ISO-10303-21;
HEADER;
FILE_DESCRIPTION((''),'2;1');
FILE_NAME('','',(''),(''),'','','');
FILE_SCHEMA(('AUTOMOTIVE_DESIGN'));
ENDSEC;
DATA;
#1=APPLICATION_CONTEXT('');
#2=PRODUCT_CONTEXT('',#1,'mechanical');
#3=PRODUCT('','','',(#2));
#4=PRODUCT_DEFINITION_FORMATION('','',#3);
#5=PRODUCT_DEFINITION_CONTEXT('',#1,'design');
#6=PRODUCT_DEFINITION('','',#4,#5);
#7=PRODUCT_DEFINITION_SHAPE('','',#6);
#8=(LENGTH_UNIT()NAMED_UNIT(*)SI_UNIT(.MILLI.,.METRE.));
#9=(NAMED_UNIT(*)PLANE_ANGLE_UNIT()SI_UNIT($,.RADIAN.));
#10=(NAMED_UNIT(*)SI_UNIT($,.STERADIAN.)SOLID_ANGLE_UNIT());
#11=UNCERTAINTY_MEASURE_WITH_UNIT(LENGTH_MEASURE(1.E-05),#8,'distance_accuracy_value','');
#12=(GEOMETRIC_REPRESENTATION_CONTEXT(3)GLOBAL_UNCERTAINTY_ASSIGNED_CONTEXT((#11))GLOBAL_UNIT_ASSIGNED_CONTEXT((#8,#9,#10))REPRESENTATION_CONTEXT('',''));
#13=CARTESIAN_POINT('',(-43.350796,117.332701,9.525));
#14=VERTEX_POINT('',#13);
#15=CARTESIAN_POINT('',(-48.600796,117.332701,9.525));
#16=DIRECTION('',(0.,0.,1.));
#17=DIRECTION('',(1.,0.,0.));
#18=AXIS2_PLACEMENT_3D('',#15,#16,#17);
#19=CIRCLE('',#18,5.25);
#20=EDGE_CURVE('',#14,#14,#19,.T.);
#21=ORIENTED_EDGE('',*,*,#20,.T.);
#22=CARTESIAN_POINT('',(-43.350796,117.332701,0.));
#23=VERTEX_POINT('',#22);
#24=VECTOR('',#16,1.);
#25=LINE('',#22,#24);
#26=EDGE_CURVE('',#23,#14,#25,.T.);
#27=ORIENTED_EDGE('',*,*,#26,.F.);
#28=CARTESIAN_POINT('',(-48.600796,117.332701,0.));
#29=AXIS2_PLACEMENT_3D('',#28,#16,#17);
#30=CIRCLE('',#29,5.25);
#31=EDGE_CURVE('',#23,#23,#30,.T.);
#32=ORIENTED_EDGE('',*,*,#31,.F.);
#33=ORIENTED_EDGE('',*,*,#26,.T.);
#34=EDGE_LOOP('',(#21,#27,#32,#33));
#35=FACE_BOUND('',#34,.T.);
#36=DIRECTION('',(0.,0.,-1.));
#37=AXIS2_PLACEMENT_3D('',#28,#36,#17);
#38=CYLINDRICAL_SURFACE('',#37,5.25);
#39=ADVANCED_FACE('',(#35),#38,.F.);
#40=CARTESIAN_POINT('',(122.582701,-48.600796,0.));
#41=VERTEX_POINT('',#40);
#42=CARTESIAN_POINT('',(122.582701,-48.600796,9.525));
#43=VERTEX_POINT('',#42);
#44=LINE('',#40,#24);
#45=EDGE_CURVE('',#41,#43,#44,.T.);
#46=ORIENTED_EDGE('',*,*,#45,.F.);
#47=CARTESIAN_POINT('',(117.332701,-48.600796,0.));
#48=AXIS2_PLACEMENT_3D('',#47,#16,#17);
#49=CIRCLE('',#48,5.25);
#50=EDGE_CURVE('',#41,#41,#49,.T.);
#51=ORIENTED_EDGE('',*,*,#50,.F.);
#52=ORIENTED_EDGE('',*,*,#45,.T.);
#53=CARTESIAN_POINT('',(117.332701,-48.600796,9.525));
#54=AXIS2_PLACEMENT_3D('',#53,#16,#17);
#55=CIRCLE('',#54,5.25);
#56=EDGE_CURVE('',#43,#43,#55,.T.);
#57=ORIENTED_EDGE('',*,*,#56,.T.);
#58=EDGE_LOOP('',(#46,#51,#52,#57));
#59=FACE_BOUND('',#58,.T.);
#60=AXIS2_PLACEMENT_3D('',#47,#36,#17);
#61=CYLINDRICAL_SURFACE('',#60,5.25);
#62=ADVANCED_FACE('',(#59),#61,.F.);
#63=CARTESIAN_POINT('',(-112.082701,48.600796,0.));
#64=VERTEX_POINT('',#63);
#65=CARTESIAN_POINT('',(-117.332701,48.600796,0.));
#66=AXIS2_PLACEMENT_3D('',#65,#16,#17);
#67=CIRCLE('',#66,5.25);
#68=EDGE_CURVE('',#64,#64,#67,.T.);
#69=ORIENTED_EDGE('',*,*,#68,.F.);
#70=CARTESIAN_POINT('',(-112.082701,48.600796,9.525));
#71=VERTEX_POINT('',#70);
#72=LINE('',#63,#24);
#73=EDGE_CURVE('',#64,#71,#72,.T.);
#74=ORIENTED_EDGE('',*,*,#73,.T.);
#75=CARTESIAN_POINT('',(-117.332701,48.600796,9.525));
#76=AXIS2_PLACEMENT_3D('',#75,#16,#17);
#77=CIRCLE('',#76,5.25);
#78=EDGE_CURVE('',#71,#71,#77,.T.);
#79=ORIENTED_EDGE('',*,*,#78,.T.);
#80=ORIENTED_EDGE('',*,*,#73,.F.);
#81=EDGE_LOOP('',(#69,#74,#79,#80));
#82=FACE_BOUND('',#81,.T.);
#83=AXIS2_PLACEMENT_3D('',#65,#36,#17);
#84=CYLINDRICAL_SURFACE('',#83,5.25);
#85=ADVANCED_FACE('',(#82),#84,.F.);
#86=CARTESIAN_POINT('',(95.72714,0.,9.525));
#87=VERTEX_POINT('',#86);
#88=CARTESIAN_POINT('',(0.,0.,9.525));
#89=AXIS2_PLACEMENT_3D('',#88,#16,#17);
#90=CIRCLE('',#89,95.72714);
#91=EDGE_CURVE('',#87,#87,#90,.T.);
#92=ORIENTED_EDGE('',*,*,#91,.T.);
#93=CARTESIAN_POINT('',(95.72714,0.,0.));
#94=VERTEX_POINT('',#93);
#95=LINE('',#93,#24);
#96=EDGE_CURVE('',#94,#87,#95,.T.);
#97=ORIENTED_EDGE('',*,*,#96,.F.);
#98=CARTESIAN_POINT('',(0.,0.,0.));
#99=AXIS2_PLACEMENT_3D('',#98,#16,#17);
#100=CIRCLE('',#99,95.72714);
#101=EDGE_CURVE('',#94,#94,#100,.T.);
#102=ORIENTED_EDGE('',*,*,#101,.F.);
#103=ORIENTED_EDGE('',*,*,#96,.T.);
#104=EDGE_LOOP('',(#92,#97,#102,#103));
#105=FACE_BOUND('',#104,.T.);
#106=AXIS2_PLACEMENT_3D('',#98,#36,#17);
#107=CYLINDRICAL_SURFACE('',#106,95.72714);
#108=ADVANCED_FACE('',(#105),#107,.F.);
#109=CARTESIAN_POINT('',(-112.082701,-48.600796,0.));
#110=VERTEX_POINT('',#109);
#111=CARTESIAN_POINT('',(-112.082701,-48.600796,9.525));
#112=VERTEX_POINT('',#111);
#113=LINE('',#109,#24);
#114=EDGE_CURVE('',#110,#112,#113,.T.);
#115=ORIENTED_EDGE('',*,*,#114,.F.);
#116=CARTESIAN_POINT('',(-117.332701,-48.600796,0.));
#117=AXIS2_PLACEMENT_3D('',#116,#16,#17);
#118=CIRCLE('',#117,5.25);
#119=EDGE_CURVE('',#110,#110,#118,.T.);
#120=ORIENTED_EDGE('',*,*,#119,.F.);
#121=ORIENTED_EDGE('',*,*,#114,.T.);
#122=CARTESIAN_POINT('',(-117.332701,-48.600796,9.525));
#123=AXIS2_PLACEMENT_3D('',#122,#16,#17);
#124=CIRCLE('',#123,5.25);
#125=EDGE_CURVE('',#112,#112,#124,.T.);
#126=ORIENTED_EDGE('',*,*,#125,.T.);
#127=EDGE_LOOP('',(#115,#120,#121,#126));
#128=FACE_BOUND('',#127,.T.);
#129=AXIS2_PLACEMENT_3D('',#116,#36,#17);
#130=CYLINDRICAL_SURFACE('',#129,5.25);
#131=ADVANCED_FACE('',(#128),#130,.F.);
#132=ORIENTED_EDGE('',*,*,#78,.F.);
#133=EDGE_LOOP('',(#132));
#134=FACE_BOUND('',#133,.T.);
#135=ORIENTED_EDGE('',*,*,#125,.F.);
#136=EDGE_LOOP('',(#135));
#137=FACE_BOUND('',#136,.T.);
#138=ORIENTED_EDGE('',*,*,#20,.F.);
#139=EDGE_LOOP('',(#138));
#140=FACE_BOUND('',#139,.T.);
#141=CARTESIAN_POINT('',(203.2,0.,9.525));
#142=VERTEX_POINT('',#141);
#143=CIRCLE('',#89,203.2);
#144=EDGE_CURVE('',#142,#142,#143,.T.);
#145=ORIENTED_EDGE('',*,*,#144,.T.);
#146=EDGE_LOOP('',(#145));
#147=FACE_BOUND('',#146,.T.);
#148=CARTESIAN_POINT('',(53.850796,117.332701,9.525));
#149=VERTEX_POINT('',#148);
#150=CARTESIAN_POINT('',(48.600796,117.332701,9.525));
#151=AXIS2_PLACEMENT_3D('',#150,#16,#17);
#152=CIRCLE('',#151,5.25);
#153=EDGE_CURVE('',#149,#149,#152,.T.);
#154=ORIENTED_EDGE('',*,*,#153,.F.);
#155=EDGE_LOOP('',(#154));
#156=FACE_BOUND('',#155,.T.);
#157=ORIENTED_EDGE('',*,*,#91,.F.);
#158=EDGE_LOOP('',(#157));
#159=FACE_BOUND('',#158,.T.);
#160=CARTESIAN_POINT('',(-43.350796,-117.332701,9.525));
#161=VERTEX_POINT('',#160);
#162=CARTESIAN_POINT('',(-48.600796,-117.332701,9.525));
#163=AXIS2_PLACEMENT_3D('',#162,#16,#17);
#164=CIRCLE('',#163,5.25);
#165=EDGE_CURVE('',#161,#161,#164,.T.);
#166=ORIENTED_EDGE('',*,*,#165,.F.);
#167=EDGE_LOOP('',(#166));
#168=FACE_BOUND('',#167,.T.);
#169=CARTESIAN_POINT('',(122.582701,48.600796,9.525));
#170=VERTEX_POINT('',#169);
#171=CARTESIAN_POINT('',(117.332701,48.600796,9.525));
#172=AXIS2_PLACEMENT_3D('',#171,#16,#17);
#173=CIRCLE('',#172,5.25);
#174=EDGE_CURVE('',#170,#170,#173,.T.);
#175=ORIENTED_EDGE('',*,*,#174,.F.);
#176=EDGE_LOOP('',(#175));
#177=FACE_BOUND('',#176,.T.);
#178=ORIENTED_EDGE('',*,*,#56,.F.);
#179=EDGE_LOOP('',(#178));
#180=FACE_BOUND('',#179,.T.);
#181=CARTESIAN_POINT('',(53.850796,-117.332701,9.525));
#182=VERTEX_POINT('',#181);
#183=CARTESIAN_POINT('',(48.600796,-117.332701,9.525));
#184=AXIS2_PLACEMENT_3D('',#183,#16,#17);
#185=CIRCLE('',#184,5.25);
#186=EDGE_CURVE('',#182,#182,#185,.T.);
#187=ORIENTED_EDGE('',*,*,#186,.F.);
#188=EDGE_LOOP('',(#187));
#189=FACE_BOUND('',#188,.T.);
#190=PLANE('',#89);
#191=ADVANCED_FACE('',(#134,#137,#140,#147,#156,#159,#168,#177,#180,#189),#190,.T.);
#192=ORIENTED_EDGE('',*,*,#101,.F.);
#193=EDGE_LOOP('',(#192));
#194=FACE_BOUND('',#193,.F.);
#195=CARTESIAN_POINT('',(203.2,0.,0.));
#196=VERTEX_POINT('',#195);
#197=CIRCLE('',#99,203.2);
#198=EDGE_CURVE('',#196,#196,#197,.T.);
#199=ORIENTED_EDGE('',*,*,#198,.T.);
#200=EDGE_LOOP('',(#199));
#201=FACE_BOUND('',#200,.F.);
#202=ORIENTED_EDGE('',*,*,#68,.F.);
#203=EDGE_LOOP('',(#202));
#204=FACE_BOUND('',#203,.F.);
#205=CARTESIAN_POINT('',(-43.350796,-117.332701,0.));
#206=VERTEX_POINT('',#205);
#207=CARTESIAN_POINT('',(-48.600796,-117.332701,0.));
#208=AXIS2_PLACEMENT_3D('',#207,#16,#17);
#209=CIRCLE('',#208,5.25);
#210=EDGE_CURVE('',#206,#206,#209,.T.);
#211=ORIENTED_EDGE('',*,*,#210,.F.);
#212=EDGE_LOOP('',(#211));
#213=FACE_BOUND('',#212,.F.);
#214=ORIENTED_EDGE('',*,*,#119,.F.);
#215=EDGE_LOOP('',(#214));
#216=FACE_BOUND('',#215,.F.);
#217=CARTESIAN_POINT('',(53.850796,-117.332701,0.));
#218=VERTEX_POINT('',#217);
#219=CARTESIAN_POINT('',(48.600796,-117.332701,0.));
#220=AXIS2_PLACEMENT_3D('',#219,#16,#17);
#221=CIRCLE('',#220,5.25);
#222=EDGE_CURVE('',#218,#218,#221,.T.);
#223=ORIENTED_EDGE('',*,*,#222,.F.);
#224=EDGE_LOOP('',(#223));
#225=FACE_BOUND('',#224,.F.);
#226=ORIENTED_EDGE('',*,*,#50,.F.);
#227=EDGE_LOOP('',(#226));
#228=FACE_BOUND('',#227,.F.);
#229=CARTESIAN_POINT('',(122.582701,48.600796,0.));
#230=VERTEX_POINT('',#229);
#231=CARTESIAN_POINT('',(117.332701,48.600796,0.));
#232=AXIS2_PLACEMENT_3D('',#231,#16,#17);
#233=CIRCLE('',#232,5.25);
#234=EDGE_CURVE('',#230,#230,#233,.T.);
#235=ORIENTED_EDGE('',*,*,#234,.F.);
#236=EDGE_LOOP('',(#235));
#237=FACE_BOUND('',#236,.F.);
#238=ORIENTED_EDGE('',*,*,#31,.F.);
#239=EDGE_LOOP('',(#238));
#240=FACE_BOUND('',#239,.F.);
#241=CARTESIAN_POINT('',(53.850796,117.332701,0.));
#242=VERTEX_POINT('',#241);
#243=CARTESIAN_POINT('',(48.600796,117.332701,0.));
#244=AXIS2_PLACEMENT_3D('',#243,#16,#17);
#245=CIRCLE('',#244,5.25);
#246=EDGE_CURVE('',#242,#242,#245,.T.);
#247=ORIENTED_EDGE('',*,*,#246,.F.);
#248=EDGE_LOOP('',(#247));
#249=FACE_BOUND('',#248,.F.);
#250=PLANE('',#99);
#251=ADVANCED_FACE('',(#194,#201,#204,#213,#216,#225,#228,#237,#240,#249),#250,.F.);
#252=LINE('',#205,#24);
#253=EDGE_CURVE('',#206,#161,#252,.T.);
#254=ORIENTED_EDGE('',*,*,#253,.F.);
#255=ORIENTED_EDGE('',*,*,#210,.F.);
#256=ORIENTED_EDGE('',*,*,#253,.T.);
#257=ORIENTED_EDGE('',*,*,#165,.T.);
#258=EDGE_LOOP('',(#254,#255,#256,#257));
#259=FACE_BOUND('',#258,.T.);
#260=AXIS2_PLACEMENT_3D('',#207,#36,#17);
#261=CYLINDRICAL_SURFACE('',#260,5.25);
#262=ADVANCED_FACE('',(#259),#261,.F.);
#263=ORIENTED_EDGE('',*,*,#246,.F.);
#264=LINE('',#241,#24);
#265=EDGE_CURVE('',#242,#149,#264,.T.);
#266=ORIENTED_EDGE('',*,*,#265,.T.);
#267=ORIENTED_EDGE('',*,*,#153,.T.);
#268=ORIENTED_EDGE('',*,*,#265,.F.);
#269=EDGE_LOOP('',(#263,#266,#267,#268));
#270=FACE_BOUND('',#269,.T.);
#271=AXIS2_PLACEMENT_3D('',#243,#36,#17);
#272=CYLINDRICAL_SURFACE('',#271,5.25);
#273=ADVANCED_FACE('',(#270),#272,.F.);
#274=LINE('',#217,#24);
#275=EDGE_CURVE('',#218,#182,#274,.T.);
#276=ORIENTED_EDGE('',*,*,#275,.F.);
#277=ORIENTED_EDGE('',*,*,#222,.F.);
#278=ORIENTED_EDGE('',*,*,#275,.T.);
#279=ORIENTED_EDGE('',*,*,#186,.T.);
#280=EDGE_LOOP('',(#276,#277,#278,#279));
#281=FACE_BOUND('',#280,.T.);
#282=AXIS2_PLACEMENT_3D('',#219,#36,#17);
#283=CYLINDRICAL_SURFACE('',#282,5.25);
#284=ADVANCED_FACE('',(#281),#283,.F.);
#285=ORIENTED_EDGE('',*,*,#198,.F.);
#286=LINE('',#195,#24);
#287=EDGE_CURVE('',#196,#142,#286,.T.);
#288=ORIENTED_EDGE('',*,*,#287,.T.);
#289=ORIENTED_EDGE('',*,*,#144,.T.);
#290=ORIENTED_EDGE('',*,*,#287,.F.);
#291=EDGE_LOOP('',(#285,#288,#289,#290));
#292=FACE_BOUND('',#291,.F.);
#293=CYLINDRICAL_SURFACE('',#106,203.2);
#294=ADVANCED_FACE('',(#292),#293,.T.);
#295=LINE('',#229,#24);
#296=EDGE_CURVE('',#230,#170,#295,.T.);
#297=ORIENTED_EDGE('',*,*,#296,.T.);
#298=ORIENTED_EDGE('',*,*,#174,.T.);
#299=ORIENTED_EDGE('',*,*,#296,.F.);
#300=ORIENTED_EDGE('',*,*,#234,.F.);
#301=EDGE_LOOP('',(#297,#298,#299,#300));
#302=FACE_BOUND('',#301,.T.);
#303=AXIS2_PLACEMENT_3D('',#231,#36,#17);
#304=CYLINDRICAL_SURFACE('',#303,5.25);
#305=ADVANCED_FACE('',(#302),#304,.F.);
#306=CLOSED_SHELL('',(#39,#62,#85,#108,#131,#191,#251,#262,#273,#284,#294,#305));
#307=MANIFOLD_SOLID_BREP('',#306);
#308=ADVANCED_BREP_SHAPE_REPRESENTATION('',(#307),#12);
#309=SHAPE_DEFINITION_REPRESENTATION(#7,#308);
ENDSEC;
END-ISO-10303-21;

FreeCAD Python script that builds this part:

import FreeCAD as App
import Part
import Sketcher
from FreeCAD import Vector
Q = App.Units.Quantity

doc = App.newDocument("Part")
body = doc.addObject("PartDesign::Body", "Body")

# Sketch on XY plane
sketch1 = body.newObject("Sketcher::SketchObject", "Sketch")
sketch1.AttachmentSupport = (doc.getObject("XY_Plane"), [""])
sketch1.MapMode = "FlatFace"
sketch1.addGeometry(Part.Circle(Vector(0, 0, 0), Vector(0, 0, 1), 203.2), False)
sketch1.addGeometry(Part.Circle(Vector(-48.600796, -117.332701, 0), Vector(0, 0, 1), 5.25), False)
sketch1.addGeometry(Part.Circle(Vector(-117.332701, -48.600796, 0), Vector(0, 0, 1), 5.25), False)
sketch1.addGeometry(Part.Circle(Vector(48.600796, -117.332701, 0), Vector(0, 0, 1), 5.25), False)
sketch1.addGeometry(Part.Circle(Vector(117.332701, -48.600796, 0), Vector(0, 0, 1), 5.25), False)
sketch1.addGeometry(Part.Circle(Vector(-117.332701, 48.600796, 0), Vector(0, 0, 1), 5.25), False)
sketch1.addGeometry(Part.Circle(Vector(-48.600796, 117.332701, 0), Vector(0, 0, 1), 5.25), False)
sketch1.addGeometry(Part.Circle(Vector(0, 0, 0), Vector(0, 0, 1), 95.72714), False)
sketch1.addGeometry(Part.Circle(Vector(117.332701, 48.600796, 0), Vector(0, 0, 1), 5.25), False)
sketch1.addGeometry(Part.Circle(Vector(48.600796, 117.332701, 0), Vector(0, 0, 1), 5.25), False)
sketch1.addConstraint(Sketcher.Constraint("Coincident", 0, 3, -1, 1))
sketch1.addConstraint(Sketcher.Constraint("Coincident", 7, 3, -1, 1))
sketch1.addConstraint(Sketcher.Constraint("Equal", 1, 2))
sketch1.addConstraint(Sketcher.Constraint("Equal", 2, 3))
sketch1.addConstraint(Sketcher.Constraint("Equal", 3, 4))
sketch1.addConstraint(Sketcher.Constraint("Equal", 4, 5))
sketch1.addConstraint(Sketcher.Constraint("Equal", 5, 6))
sketch1.addConstraint(Sketcher.Constraint("Equal", 6, 8))
sketch1.addConstraint(Sketcher.Constraint("Equal", 8, 9))
sketch1.addConstraint(Sketcher.Constraint("Symmetric", 4, 3, 5, 3, -1, 1))
sketch1.addConstraint(Sketcher.Constraint("Symmetric", 3, 3, 6, 3, -1, 1))
sketch1.addConstraint(Sketcher.Constraint("Symmetric", 2, 3, 8, 3, -1, 1))
sketch1.addConstraint(Sketcher.Constraint("Symmetric", 1, 3, 9, 3, -1, 1))
sketch1.addConstraint(Sketcher.Constraint("Symmetric", 1, 3, 3, 3, -2))
sketch1.addConstraint(Sketcher.Constraint("Symmetric", 2, 3, 4, 3, -2))
sketch1.addConstraint(Sketcher.Constraint("Diameter", 0, Q("16 in")))
sketch1.addConstraint(Sketcher.Constraint("Diameter", 1, Q("10.5 mm")))
sketch1.addConstraint(Sketcher.Constraint("Diameter", 7, Q("191.45428 mm")))
sketch1.addConstraint(Sketcher.Constraint("DistanceY", 1, 3, -1, 1, Q("117.332701 mm")))
sketch1.addConstraint(Sketcher.Constraint("DistanceX", 2, 3, -1, 1, Q("117.332701 mm")))
sketch1.addConstraint(Sketcher.Constraint("DistanceX", 1, 3, -1, 1, Q("48.600796 mm")))
sketch1.addConstraint(Sketcher.Constraint("DistanceY", 2, 3, -1, 1, Q("48.600796 mm")))
pad1 = body.newObject("PartDesign::Pad", "Pad")
pad1.Profile = sketch1
pad1.Length = Q("0.375 in")

doc.recompute()
